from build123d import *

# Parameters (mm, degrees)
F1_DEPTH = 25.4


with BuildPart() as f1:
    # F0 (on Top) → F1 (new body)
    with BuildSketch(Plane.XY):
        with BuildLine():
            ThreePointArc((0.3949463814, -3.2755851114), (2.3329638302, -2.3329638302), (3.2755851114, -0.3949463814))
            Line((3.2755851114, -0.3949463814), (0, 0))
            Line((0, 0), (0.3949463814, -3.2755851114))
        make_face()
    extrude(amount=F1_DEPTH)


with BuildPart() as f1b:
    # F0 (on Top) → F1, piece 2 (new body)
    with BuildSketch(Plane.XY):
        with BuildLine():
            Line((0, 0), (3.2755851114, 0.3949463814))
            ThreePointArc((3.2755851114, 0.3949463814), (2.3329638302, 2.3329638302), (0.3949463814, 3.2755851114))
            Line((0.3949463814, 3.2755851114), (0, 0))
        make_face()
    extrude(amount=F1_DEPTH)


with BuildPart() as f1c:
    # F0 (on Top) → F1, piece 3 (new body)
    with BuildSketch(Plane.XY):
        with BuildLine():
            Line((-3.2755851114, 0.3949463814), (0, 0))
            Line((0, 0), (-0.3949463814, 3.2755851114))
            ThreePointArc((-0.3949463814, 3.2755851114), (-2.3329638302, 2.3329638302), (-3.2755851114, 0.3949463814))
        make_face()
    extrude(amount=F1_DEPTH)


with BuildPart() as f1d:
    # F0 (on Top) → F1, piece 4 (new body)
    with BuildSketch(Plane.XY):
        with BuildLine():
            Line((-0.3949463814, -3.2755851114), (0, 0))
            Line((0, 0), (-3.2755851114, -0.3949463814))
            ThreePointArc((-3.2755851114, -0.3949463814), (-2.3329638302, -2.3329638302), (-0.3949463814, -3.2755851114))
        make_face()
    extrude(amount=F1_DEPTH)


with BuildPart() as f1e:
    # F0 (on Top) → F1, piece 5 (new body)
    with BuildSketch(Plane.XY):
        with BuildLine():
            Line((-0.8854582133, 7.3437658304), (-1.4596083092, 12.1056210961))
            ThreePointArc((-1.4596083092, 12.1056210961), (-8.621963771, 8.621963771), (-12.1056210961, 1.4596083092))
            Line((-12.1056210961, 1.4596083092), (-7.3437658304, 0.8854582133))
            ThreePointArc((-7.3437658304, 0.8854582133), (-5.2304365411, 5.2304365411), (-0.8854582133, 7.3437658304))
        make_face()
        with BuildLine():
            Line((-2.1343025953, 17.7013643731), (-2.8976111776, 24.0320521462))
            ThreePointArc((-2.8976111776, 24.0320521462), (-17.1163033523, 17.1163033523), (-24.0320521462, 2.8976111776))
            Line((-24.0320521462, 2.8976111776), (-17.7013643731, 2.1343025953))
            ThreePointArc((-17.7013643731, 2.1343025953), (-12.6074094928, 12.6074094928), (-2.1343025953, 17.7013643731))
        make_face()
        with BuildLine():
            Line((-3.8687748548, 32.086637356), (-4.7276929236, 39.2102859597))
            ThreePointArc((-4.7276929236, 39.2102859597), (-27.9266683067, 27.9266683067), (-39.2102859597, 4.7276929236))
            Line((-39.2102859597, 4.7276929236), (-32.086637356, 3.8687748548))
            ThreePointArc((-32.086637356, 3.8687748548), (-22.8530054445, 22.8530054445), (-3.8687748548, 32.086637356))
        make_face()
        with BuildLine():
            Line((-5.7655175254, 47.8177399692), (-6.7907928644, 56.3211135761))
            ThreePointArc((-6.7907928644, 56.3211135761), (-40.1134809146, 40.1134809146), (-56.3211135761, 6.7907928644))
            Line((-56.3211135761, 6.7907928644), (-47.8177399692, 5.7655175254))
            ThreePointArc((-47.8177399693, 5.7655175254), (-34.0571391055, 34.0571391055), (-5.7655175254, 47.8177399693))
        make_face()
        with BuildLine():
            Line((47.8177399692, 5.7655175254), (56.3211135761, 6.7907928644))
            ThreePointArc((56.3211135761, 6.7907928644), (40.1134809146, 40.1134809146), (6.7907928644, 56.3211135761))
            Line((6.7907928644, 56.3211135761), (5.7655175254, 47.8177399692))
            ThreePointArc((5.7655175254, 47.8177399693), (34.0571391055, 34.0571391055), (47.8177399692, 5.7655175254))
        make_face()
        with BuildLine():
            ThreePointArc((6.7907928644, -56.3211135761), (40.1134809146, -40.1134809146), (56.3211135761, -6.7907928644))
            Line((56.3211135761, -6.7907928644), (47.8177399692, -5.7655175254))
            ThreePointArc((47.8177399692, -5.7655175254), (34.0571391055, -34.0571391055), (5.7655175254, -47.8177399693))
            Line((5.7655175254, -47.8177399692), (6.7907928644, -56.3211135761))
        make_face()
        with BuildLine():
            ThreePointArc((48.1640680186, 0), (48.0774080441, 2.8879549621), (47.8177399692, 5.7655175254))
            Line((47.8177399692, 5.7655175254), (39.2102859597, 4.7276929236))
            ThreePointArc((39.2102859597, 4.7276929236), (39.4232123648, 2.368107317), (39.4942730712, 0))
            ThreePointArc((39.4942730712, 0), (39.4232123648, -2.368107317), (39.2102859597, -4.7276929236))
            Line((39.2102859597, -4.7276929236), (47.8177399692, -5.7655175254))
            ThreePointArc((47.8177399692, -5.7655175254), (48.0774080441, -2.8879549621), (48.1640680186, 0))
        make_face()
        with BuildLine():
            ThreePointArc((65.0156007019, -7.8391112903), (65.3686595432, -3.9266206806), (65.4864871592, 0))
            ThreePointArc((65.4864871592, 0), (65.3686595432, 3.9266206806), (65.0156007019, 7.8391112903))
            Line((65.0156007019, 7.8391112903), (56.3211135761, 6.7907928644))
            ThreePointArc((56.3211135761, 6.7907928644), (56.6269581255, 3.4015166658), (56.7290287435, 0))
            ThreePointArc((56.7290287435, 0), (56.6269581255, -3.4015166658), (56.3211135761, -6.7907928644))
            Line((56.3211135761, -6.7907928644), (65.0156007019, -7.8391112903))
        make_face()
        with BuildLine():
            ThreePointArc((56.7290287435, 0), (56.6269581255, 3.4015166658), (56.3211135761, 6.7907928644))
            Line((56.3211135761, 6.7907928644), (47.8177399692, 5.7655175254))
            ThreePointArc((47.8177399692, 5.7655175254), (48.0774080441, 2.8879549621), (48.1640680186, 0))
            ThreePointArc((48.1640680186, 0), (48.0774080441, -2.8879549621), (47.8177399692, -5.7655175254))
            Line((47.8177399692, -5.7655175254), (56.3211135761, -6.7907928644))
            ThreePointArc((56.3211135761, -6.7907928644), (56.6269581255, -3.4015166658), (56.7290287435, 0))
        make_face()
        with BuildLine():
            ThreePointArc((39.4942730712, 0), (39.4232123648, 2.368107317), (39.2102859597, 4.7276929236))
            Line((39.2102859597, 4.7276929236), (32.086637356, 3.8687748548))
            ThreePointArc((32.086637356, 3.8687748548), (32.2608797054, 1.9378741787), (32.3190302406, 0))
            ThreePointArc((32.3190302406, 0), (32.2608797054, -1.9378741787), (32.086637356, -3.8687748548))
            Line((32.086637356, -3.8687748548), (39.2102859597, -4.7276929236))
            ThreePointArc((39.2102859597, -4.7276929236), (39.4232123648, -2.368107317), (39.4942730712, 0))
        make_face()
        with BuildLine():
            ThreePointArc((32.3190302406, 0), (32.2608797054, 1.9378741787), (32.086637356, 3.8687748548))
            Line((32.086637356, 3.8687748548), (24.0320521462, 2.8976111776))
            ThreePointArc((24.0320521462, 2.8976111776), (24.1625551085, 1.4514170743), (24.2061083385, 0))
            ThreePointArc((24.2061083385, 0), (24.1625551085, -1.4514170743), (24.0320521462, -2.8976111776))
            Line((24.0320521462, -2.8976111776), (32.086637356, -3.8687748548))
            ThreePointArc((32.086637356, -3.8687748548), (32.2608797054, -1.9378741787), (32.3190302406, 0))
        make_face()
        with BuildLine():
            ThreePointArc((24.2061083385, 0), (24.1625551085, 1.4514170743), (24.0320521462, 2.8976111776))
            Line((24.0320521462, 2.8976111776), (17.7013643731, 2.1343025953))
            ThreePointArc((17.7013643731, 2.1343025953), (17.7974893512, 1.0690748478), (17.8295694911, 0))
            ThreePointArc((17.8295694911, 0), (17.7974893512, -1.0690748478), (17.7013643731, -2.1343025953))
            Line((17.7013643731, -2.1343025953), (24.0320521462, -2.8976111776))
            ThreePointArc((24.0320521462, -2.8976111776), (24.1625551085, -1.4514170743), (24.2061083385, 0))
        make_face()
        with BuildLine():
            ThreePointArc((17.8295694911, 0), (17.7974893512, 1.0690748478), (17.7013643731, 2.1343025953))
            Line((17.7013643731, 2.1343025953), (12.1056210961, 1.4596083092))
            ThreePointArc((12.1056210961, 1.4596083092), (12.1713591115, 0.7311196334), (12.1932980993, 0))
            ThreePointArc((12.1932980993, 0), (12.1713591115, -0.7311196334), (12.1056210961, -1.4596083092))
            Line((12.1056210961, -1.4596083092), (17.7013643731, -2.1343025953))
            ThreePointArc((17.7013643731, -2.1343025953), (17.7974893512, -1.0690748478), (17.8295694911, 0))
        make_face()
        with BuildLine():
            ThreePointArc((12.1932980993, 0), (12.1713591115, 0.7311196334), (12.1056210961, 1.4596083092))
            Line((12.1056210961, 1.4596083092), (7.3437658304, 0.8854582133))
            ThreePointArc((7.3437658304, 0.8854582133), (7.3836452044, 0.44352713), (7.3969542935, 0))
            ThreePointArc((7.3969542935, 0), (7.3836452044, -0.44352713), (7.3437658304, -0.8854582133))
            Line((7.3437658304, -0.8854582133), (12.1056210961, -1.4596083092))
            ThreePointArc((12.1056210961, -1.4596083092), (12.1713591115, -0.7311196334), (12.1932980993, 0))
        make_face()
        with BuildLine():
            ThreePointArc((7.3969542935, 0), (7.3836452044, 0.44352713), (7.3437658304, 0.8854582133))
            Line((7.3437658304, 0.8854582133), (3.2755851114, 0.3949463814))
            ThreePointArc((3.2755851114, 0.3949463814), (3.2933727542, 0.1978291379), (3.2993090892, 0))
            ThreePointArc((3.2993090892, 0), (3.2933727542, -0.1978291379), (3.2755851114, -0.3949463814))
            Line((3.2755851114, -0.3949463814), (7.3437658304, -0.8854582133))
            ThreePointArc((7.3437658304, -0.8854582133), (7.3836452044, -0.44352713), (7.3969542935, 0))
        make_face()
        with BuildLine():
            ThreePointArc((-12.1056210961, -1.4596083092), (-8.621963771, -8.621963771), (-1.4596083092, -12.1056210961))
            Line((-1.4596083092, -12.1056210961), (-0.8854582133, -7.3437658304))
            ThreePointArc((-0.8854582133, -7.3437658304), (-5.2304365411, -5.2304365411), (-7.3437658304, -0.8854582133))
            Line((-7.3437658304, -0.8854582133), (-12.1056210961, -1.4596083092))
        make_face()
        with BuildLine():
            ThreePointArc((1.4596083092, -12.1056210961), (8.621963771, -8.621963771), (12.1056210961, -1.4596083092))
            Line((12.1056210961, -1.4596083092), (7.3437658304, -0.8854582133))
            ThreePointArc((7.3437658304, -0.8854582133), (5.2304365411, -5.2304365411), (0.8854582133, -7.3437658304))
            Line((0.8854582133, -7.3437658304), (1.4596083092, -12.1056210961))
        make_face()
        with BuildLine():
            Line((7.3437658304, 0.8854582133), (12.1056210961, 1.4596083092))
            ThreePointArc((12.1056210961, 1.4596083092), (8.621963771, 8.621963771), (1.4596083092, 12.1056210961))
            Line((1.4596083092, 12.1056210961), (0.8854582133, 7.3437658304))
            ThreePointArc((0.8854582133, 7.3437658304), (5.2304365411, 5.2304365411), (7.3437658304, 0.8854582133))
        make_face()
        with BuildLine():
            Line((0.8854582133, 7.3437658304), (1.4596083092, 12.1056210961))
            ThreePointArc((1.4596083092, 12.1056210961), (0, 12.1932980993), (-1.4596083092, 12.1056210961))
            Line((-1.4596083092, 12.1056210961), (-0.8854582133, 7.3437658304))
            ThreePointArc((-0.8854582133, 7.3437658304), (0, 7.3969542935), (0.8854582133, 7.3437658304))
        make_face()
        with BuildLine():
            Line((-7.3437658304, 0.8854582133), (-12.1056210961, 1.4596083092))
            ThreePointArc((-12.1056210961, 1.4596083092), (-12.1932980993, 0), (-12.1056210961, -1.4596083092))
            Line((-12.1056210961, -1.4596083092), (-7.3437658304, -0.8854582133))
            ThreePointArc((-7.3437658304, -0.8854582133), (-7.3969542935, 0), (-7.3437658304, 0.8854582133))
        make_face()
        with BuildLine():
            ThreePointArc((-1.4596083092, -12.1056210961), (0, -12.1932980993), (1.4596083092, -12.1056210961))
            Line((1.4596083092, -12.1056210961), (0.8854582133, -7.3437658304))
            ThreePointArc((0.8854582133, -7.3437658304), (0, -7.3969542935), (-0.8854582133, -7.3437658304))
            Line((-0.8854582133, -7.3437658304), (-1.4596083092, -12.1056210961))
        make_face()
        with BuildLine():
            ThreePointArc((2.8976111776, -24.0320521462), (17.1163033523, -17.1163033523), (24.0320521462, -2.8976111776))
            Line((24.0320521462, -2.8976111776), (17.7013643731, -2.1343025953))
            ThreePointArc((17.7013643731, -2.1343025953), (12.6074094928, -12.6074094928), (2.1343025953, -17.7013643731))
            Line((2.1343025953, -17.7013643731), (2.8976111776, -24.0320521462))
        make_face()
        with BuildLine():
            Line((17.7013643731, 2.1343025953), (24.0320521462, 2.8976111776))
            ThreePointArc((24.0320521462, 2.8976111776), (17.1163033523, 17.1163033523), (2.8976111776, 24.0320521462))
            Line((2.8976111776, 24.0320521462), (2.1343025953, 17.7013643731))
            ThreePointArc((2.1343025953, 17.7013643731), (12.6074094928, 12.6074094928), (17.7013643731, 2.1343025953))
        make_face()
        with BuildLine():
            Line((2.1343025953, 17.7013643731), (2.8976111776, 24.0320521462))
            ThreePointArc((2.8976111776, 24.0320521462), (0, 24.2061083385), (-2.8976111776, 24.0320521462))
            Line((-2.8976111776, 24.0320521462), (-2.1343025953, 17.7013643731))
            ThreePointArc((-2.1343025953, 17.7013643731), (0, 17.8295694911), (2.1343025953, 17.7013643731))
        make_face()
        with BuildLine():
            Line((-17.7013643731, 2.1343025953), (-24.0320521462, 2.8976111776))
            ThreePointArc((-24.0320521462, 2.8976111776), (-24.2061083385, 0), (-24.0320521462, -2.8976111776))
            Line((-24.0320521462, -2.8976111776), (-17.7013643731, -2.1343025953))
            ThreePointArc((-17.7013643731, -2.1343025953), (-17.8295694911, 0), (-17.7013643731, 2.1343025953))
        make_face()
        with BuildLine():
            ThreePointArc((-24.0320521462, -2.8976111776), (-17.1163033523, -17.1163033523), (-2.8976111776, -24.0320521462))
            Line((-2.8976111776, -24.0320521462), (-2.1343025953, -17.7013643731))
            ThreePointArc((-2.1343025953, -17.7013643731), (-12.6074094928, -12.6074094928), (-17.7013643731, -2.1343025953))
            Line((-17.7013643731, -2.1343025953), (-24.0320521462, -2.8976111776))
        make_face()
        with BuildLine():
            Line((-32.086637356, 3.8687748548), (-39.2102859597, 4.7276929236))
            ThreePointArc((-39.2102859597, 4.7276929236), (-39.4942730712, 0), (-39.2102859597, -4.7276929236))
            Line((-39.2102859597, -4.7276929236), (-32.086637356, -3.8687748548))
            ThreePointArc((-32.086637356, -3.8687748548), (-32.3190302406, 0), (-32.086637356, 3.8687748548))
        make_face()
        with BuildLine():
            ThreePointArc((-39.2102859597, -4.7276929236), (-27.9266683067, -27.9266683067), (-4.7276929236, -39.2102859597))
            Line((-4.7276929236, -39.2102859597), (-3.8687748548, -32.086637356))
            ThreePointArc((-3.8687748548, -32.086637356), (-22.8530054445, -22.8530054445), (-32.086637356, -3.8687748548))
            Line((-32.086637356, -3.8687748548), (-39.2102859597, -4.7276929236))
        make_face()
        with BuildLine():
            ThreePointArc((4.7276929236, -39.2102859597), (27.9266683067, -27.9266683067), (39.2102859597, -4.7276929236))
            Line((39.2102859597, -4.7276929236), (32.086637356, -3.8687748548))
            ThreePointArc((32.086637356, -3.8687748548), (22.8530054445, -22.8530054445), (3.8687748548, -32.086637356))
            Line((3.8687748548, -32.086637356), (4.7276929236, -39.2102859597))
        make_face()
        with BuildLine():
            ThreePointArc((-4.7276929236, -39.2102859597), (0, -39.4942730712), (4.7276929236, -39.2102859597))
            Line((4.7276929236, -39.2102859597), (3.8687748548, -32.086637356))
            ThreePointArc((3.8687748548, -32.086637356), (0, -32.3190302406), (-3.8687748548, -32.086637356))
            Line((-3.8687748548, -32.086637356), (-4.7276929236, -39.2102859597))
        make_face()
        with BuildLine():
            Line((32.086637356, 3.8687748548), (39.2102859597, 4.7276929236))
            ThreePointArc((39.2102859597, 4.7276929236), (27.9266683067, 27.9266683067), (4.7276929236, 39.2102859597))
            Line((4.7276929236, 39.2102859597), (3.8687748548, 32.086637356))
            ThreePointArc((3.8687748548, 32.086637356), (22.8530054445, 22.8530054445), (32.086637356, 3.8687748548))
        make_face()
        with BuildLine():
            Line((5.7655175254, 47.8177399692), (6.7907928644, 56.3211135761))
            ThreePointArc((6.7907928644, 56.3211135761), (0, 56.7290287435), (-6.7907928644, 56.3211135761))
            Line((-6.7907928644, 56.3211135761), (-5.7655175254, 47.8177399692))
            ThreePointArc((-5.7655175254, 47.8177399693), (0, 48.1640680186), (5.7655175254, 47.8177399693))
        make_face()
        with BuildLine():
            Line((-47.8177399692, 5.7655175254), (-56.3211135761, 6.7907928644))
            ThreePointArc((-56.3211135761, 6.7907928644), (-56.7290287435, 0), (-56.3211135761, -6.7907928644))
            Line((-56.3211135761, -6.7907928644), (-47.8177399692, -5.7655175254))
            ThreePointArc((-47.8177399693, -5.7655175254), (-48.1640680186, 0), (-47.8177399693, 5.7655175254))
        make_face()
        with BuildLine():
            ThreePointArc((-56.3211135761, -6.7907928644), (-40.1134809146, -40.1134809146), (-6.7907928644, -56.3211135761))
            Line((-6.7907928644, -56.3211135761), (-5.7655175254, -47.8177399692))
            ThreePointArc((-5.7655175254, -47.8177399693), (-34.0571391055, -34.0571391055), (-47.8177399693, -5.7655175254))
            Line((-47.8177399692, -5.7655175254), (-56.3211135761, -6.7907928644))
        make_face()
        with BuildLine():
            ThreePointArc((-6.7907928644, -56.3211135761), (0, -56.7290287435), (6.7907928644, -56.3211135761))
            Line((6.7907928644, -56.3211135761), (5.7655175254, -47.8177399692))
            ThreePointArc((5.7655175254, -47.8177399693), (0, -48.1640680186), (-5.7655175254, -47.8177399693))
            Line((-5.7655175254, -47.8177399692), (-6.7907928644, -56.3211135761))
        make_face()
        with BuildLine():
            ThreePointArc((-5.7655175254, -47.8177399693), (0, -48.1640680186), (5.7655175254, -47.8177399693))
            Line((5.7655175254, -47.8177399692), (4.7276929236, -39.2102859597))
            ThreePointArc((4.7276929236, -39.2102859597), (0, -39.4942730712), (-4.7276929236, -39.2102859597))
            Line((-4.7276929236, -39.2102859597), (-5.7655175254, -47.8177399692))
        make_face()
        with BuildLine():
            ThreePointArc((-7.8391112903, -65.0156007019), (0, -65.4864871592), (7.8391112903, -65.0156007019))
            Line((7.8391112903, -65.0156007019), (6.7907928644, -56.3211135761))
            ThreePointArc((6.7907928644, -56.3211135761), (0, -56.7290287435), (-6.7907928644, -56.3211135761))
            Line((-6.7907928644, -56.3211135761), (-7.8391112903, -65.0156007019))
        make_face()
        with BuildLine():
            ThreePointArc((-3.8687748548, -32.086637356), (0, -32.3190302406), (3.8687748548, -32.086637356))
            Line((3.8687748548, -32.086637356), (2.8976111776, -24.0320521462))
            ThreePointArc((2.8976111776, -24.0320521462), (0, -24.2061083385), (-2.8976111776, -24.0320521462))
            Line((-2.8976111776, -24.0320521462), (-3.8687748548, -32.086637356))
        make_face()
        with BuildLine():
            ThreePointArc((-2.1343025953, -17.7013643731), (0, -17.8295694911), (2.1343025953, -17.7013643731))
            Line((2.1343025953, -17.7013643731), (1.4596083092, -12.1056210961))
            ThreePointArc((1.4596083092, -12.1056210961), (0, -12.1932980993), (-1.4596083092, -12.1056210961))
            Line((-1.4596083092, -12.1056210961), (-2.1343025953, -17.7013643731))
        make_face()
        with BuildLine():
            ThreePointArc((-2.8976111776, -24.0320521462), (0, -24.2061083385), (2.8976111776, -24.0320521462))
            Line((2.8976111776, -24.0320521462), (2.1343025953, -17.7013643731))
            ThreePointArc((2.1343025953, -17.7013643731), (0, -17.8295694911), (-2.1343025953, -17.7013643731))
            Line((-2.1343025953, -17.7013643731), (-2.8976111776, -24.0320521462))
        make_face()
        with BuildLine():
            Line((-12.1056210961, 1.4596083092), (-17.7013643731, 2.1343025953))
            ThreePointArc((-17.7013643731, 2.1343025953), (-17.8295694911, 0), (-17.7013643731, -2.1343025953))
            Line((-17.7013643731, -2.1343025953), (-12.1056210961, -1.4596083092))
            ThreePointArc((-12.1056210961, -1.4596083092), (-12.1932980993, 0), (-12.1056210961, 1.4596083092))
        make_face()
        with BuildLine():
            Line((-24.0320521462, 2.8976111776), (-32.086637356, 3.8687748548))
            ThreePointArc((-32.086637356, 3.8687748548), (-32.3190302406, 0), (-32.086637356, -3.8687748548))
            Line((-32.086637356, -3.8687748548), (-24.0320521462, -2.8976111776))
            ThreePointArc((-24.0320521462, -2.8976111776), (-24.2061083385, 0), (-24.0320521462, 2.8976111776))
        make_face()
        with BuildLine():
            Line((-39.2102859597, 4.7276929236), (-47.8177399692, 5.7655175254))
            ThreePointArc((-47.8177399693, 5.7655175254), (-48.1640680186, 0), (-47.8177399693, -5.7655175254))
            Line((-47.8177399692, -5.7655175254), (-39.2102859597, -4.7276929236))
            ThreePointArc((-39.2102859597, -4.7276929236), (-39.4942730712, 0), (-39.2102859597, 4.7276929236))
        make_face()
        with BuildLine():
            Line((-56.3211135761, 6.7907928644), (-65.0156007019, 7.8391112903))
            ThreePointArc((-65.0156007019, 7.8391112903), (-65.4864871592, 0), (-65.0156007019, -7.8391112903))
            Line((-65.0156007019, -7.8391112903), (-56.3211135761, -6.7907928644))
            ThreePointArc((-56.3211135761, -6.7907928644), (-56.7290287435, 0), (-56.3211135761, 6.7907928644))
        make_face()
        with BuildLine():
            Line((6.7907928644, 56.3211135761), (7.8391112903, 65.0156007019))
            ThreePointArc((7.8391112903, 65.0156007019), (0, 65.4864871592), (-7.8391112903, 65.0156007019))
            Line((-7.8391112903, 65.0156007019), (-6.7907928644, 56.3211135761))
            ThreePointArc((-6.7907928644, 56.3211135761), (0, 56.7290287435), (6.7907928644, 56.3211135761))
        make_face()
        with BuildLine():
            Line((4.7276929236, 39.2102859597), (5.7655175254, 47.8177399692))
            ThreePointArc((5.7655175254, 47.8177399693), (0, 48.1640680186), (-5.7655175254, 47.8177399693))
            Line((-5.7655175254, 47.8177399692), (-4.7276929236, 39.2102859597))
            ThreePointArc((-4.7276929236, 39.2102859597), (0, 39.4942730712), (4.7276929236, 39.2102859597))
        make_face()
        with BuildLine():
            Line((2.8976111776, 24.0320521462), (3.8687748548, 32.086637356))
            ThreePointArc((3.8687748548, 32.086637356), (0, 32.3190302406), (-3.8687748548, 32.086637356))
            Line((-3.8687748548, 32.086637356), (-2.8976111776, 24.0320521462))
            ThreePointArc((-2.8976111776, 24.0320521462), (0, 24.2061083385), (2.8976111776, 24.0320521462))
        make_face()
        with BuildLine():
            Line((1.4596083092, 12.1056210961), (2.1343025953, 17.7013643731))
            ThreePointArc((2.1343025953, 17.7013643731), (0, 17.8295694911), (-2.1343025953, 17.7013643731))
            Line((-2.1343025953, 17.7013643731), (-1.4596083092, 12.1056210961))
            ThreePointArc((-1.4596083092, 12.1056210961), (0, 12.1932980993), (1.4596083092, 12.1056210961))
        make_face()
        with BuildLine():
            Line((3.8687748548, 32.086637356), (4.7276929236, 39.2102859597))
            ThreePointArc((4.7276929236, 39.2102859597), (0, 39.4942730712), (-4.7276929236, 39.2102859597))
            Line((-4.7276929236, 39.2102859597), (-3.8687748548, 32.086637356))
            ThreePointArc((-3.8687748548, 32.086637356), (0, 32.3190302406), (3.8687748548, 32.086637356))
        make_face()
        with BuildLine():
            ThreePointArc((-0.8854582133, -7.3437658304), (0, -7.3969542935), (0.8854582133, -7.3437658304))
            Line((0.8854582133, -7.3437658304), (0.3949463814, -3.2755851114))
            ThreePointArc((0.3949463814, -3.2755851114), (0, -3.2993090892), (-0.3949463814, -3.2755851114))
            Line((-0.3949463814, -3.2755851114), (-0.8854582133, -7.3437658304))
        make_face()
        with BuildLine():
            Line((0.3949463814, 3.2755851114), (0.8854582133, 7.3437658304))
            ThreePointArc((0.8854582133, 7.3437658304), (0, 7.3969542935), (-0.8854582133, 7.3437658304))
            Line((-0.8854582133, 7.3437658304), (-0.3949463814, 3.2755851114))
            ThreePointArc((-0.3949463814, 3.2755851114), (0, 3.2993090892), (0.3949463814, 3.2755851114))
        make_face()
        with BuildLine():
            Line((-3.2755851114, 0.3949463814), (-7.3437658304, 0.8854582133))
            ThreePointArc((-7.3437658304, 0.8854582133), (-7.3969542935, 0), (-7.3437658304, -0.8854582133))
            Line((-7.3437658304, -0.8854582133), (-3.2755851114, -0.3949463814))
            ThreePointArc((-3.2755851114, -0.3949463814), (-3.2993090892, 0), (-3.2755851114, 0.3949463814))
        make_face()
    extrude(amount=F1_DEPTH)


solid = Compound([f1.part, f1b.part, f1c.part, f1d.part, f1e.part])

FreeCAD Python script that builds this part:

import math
import FreeCAD as App
import Part
import Sketcher
from FreeCAD import Vector
Q = App.Units.Quantity

doc = App.newDocument("Part")
body = doc.addObject("PartDesign::Body", "Body")

# Sketch on XY plane
sketch1 = body.newObject("Sketcher::SketchObject", "Sketch")
sketch1.AttachmentSupport = (doc.getObject("XY_Plane"), [""])
sketch1.MapMode = "FlatFace"
sketch1.addGeometry([
    Part.ArcOfCircle(Part.Circle(Vector(0, 0, 0), Vector(0, 0, 1), 3.299309), math.radians(-83.124877), math.radians(-6.875123)),
    Part.LineSegment(Vector(3.275585, -0.394946, 0), Vector(0, 0, 0)),
    Part.LineSegment(Vector(0, 0, 0), Vector(0.394946, -3.275585, 0)),
], False)
sketch1.addConstraint([
    Sketcher.Constraint("Coincident", 0, 2, 1, 1),
    Sketcher.Constraint("Coincident", 1, 2, 2, 1),
    Sketcher.Constraint("Coincident", 2, 2, 0, 1),
    Sketcher.Constraint("Coincident", 0, 3, -1, 1),
    Sketcher.Constraint("Coincident", 1, 2, -1, 1),
    Sketcher.Constraint("Radius", 0, Q("3.299309 mm")),
    Sketcher.Constraint("DistanceX", 2, 2, 0, 2, Q("2.880639 mm")),
    Sketcher.Constraint("DistanceY", 2, 2, 0, 2, Q("2.880639 mm")),
])
pad1 = body.newObject("PartDesign::Pad", "Pad")
pad1.Profile = sketch1
pad1.Length = Q("1 in")
body2 = doc.addObject("PartDesign::Body", "Body001")

# Sketch on XY plane
sketch2 = body2.newObject("Sketcher::SketchObject", "Sketch001")
sketch2.AttachmentSupport = (doc.getObject("XY_Plane001"), [""])
sketch2.MapMode = "FlatFace"
sketch2.addGeometry([
    Part.LineSegment(Vector(0, 0, 0), Vector(3.275585, 0.394946, 0)),
    Part.ArcOfCircle(Part.Circle(Vector(0, 0, 0), Vector(0, 0, 1), 3.299309), math.radians(6.875123), math.radians(83.124877)),
    Part.LineSegment(Vector(0.394946, 3.275585, 0), Vector(0, 0, 0)),
], False)
sketch2.addConstraint([
    Sketcher.Constraint("Coincident", 0, 2, 1, 1),
    Sketcher.Constraint("Coincident", 1, 2, 2, 1),
    Sketcher.Constraint("Coincident", 2, 2, 0, 1),
    Sketcher.Constraint("Coincident", 1, 3, -1, 1),
    Sketcher.Constraint("Coincident", 2, 2, -1, 1),
    Sketcher.Constraint("Radius", 1, Q("3.299309 mm")),
    Sketcher.Constraint("DistanceX", 1, 2, 0, 2, Q("2.880639 mm")),
    Sketcher.Constraint("DistanceY", 0, 2, 1, 2, Q("2.880639 mm")),
])
pad2 = body2.newObject("PartDesign::Pad", "Pad001")
pad2.Profile = sketch2
pad2.Length = Q("1 in")
body3 = doc.addObject("PartDesign::Body", "Body002")

# Sketch on XY plane
sketch3 = body3.newObject("Sketcher::SketchObject", "Sketch002")
sketch3.AttachmentSupport = (doc.getObject("XY_Plane002"), [""])
sketch3.MapMode = "FlatFace"
sketch3.addGeometry([
    Part.LineSegment(Vector(-3.275585, 0.394946, 0), Vector(0, 0, 0)),
    Part.LineSegment(Vector(0, 0, 0), Vector(-0.394946, 3.275585, 0)),
    Part.ArcOfCircle(Part.Circle(Vector(0, 0, 0), Vector(0, 0, 1), 3.299309), math.radians(96.875123), math.radians(173.124877)),
], False)
sketch3.addConstraint([
    Sketcher.Constraint("Coincident", 0, 2, 1, 1),
    Sketcher.Constraint("Coincident", 1, 2, 2, 1),
    Sketcher.Constraint("Coincident", 2, 2, 0, 1),
    Sketcher.Constraint("Coincident", 2, 3, -1, 1),
    Sketcher.Constraint("Coincident", 0, 2, -1, 1),
    Sketcher.Constraint("Radius", 2, Q("3.299309 mm")),
    Sketcher.Constraint("DistanceX", 2, 2, 1, 2, Q("2.880639 mm")),
    Sketcher.Constraint("DistanceY", 2, 2, 1, 2, Q("2.880639 mm")),
])
pad3 = body3.newObject("PartDesign::Pad", "Pad002")
pad3.Profile = sketch3
pad3.Length = Q("1 in")
body4 = doc.addObject("PartDesign::Body", "Body003")

# Sketch on XY plane
sketch4 = body4.newObject("Sketcher::SketchObject", "Sketch003")
sketch4.AttachmentSupport = (doc.getObject("XY_Plane003"), [""])
sketch4.MapMode = "FlatFace"
sketch4.addGeometry([
    Part.LineSegment(Vector(-0.394946, -3.275585, 0), Vector(0, 0, 0)),
    Part.LineSegment(Vector(0, 0, 0), Vector(-3.275585, -0.394946, 0)),
    Part.ArcOfCircle(Part.Circle(Vector(0, 0, 0), Vector(0, 0, 1), 3.299309), math.radians(-173.124877), math.radians(-96.875123)),
], False)
sketch4.addConstraint([
    Sketcher.Constraint("Coincident", 0, 2, 1, 1),
    Sketcher.Constraint("Coincident", 1, 2, 2, 1),
    Sketcher.Constraint("Coincident", 2, 2, 0, 1),
    Sketcher.Constraint("Coincident", 2, 3, -1, 1),
    Sketcher.Constraint("Coincident", 0, 2, -1, 1),
    Sketcher.Constraint("Radius", 2, Q("3.299309 mm")),
    Sketcher.Constraint("DistanceX", 1, 2, 2, 2, Q("2.880639 mm")),
    Sketcher.Constraint("DistanceY", 2, 2, 1, 2, Q("2.880639 mm")),
])
pad4 = body4.newObject("PartDesign::Pad", "Pad003")
pad4.Profile = sketch4
pad4.Length = Q("1 in")
body5 = doc.addObject("PartDesign::Body", "Body004")

# Sketch on XY plane
sketch5 = body5.newObject("Sketcher::SketchObject", "Sketch004")
sketch5.AttachmentSupport = (doc.getObject("XY_Plane004"), [""])
sketch5.MapMode = "FlatFace"
sketch5.addGeometry([
    Part.ArcOfCircle(Part.Circle(Vector(0, 0, 0), Vector(0, 0, 1), 56.729029), math.radians(-83.124877), math.radians(-6.875123)),  # 0
    Part.LineSegment(Vector(56.321114, -6.790793, 0), Vector(65.015601, -7.839111, 0)),  # 1
    Part.ArcOfCircle(Part.Circle(Vector(0, 0, 0), Vector(0, 0, 1), 65.486487), math.radians(-6.875123), math.radians(0)),  # 2
    Part.ArcOfCircle(Part.Circle(Vector(0, 0, 0), Vector(0, 0, 1), 65.486487), math.radians(0), math.radians(6.875123)),  # 3
    Part.LineSegment(Vector(65.015601, 7.839111, 0), Vector(56.321114, 6.790793, 0)),  # 4
    Part.ArcOfCircle(Part.Circle(Vector(0, 0, 0), Vector(0, 0, 1), 56.729029), math.radians(6.875123), math.radians(83.124877)),  # 5
    Part.LineSegment(Vector(6.790793, 56.321114, 0), Vector(7.839111, 65.015601, 0)),  # 6
    Part.ArcOfCircle(Part.Circle(Vector(0, 0, 0), Vector(0, 0, 1), 65.486487), math.radians(83.124877), math.radians(96.875123)),  # 7
    Part.LineSegment(Vector(-7.839111, 65.015601, 0), Vector(-6.790793, 56.321114, 0)),  # 8
    Part.ArcOfCircle(Part.Circle(Vector(0, 0, 0), Vector(0, 0, 1), 56.729029), math.radians(96.875123), math.radians(173.124877)),  # 9
    Part.LineSegment(Vector(-56.321114, 6.790793, 0), Vector(-65.015601, 7.839111, 0)),  # 10
    Part.ArcOfCircle(Part.Circle(Vector(0, 0, 0), Vector(0, 0, 1), 65.486487), math.radians(173.124877), math.radians(186.875123)),  # 11
    Part.LineSegment(Vector(-65.015601, -7.839111, 0), Vector(-56.321114, -6.790793, 0)),  # 12
    Part.ArcOfCircle(Part.Circle(Vector(0, 0, 0), Vector(0, 0, 1), 56.729029), math.radians(-173.124877), math.radians(-96.875123)),  # 13
    Part.LineSegment(Vector(-6.790793, -56.321114, 0), Vector(-7.839111, -65.015601, 0)),  # 14
    Part.ArcOfCircle(Part.Circle(Vector(0, 0, 0), Vector(0, 0, 1), 65.486487), math.radians(-96.875123), math.radians(-83.124877)),  # 15
    Part.LineSegment(Vector(7.839111, -65.015601, 0), Vector(6.790793, -56.321114, 0)),  # 16
    Part.ArcOfCircle(Part.Circle(Vector(0, 0, 0), Vector(0, 0, 1), 39.494273), math.radians(-173.124877), math.radians(-96.875123)),  # 17
    Part.LineSegment(Vector(-4.727693, -39.210286, 0), Vector(-5.765518, -47.81774, 0)),  # 18
    Part.ArcOfCircle(Part.Circle(Vector(0, 0, 0), Vector(0, 0, 1), 48.164068), math.radians(-173.124877), math.radians(-96.875123)),  # 19
    Part.LineSegment(Vector(-47.81774, -5.765518, 0), Vector(-39.210286, -4.727693, 0)),  # 20
    Part.ArcOfCircle(Part.Circle(Vector(0, 0, 0), Vector(0, 0, 1), 24.206108), math.radians(-173.124877), math.radians(-96.875123)),  # 21
    Part.LineSegment(Vector(-2.897611, -24.032052, 0), Vector(-3.868775, -32.086637, 0)),  # 22
    Part.ArcOfCircle(Part.Circle(Vector(0, 0, 0), Vector(0, 0, 1), 32.31903), math.radians(-173.124877), math.radians(-96.875123)),  # 23
    Part.LineSegment(Vector(-32.086637, -3.868775, 0), Vector(-24.032052, -2.897611, 0)),  # 24
    Part.LineSegment(Vector(-1.459608, -12.105621, 0), Vector(-2.134303, -17.701364, 0)),  # 25
    Part.ArcOfCircle(Part.Circle(Vector(0, 0, 0), Vector(0, 0, 1), 17.829569), math.radians(-173.124877), math.radians(-96.875123)),  # 26
    Part.LineSegment(Vector(-17.701364, -2.134303, 0), Vector(-12.105621, -1.459608, 0)),  # 27
    Part.ArcOfCircle(Part.Circle(Vector(0, 0, 0), Vector(0, 0, 1), 12.193298), math.radians(-173.124877), math.radians(-96.875123)),  # 28
    Part.ArcOfCircle(Part.Circle(Vector(0, 0, 0), Vector(0, 0, 1), 7.396954), math.radians(-173.124877), math.radians(-96.875123)),  # 29
    Part.LineSegment(Vector(-7.343766, -0.885458, 0), Vector(-3.275585, -0.394946, 0)),  # 30
    Part.ArcOfCircle(Part.Circle(Vector(0, 0, 0), Vector(0, 0, 1), 3.299309), math.radians(173.124877), math.radians(186.875123)),  # 31
    Part.LineSegment(Vector(-3.275585, 0.394946, 0), Vector(-7.343766, 0.885458, 0)),  # 32
    Part.ArcOfCircle(Part.Circle(Vector(0, 0, 0), Vector(0, 0, 1), 7.396954), math.radians(96.875123), math.radians(173.124877)),  # 33
    Part.LineSegment(Vector(-0.885458, 7.343766, 0), Vector(-0.394946, 3.275585, 0)),  # 34
    Part.ArcOfCircle(Part.Circle(Vector(0, 0, 0), Vector(0, 0, 1), 3.299309), math.radians(83.124877), math.radians(96.875123)),  # 35
    Part.LineSegment(Vector(0.394946, 3.275585, 0), Vector(0.885458, 7.343766, 0)),  # 36
    Part.ArcOfCircle(Part.Circle(Vector(0, 0, 0), Vector(0, 0, 1), 7.396954), math.radians(6.875123), math.radians(83.124877)),  # 37
    Part.LineSegment(Vector(7.343766, 0.885458, 0), Vector(3.275585, 0.394946, 0)),  # 38
    Part.ArcOfCircle(Part.Circle(Vector(0, 0, 0), Vector(0, 0, 1), 3.299309), math.radians(0), math.radians(6.875123)),  # 39
    Part.ArcOfCircle(Part.Circle(Vector(0, 0, 0), Vector(0, 0, 1), 3.299309), math.radians(-6.875123), math.radians(0)),  # 40
    Part.LineSegment(Vector(3.275585, -0.394946, 0), Vector(7.343766, -0.885458, 0)),  # 41
    Part.ArcOfCircle(Part.Circle(Vector(0, 0, 0), Vector(0, 0, 1), 7.396954), math.radians(-83.124877), math.radians(-6.875123)),  # 42
    Part.LineSegment(Vector(0.885458, -7.343766, 0), Vector(0.394946, -3.275585, 0)),  # 43
    Part.ArcOfCircle(Part.Circle(Vector(0, 0, 0), Vector(0, 0, 1), 3.299309), math.radians(-96.875123), math.radians(-83.124877)),  # 44
    Part.LineSegment(Vector(-0.394946, -3.275585, 0), Vector(-0.885458, -7.343766, 0)),  # 45
    Part.ArcOfCircle(Part.Circle(Vector(0, 0, 0), Vector(0, 0, 1), 39.494273), math.radians(-83.124877), math.radians(-6.875123)),  # 46
    Part.LineSegment(Vector(39.210286, -4.727693, 0), Vector(47.81774, -5.765518, 0)),  # 47
    Part.ArcOfCircle(Part.Circle(Vector(0, 0, 0), Vector(0, 0, 1), 48.164068), math.radians(-83.124877), math.radians(-6.875123)),  # 48
    Part.LineSegment(Vector(5.765518, -47.81774, 0), Vector(4.727693, -39.210286, 0)),  # 49
    Part.LineSegment(Vector(3.868775, -32.086637, 0), Vector(2.897611, -24.032052, 0)),  # 50
    Part.ArcOfCircle(Part.Circle(Vector(0, 0, 0), Vector(0, 0, 1), 24.206108), math.radians(-83.124877), math.radians(-6.875123)),  # 51
    Part.LineSegment(Vector(24.032052, -2.897611, 0), Vector(32.086637, -3.868775, 0)),  # 52
    Part.ArcOfCircle(Part.Circle(Vector(0, 0, 0), Vector(0, 0, 1), 32.31903), math.radians(-83.124877), math.radians(-6.875123)),  # 53
    Part.ArcOfCircle(Part.Circle(Vector(0, 0, 0), Vector(0, 0, 1), 17.829569), math.radians(-83.124877), math.radians(-6.875123)),  # 54
    Part.LineSegment(Vector(2.134303, -17.701364, 0), Vector(1.459608, -12.105621, 0)),  # 55
    Part.ArcOfCircle(Part.Circle(Vector(0, 0, 0), Vector(0, 0, 1), 12.193298), math.radians(-83.124877), math.radians(-6.875123)),  # 56
    Part.LineSegment(Vector(12.105621, -1.459608, 0), Vector(17.701364, -2.134303, 0)),  # 57
    Part.ArcOfCircle(Part.Circle(Vector(0, 0, 0), Vector(0, 0, 1), 17.829569), math.radians(96.875123), math.radians(173.124877)),  # 58
    Part.LineSegment(Vector(-2.134303, 17.701364, 0), Vector(-1.459608, 12.105621, 0)),  # 59
    Part.ArcOfCircle(Part.Circle(Vector(0, 0, 0), Vector(0, 0, 1), 12.193298), math.radians(96.875123), math.radians(173.124877)),  # 60
    Part.LineSegment(Vector(-12.105621, 1.459608, 0), Vector(-17.701364, 2.134303, 0)),  # 61
    Part.ArcOfCircle(Part.Circle(Vector(0, 0, 0), Vector(0, 0, 1), 32.31903), math.radians(96.875123), math.radians(173.124877)),  # 62
    Part.LineSegment(Vector(-3.868775, 32.086637, 0), Vector(-2.897611, 24.032052, 0)),  # 63
    Part.ArcOfCircle(Part.Circle(Vector(0, 0, 0), Vector(0, 0, 1), 24.206108), math.radians(96.875123), math.radians(173.124877)),  # 64
    Part.LineSegment(Vector(-24.032052, 2.897611, 0), Vector(-32.086637, 3.868775, 0)),  # 65
    Part.LineSegment(Vector(-5.765518, 47.81774, 0), Vector(-4.727693, 39.210286, 0)),  # 66
    Part.ArcOfCircle(Part.Circle(Vector(0, 0, 0), Vector(0, 0, 1), 39.494273), math.radians(96.875123), math.radians(173.124877)),  # 67
    Part.LineSegment(Vector(-39.210286, 4.727693, 0), Vector(-47.81774, 5.765518, 0)),  # 68
    Part.ArcOfCircle(Part.Circle(Vector(0, 0, 0), Vector(0, 0, 1), 48.164068), math.radians(96.875123), math.radians(173.124877)),  # 69
    Part.ArcOfCircle(Part.Circle(Vector(0, 0, 0), Vector(0, 0, 1), 17.829569), math.radians(6.875123), math.radians(83.124877)),  # 70
    Part.LineSegment(Vector(17.701364, 2.134303, 0), Vector(12.105621, 1.459608, 0)),  # 71
    Part.ArcOfCircle(Part.Circle(Vector(0, 0, 0), Vector(0, 0, 1), 12.193298), math.radians(6.875123), math.radians(83.124877)),  # 72
    Part.LineSegment(Vector(1.459608, 12.105621, 0), Vector(2.134303, 17.701364, 0)),  # 73
    Part.LineSegment(Vector(2.897611, 24.032052, 0), Vector(3.868775, 32.086637, 0)),  # 74
    Part.ArcOfCircle(Part.Circle(Vector(0, 0, 0), Vector(0, 0, 1), 32.31903), math.radians(6.875123), math.radians(83.124877)),  # 75
    Part.LineSegment(Vector(32.086637, 3.868775, 0), Vector(24.032052, 2.897611, 0)),  # 76
    Part.ArcOfCircle(Part.Circle(Vector(0, 0, 0), Vector(0, 0, 1), 24.206108), math.radians(6.875123), math.radians(83.124877)),  # 77
    Part.ArcOfCircle(Part.Circle(Vector(0, 0, 0), Vector(0, 0, 1), 39.494273), math.radians(6.875123), math.radians(83.124877)),  # 78
    Part.LineSegment(Vector(4.727693, 39.210286, 0), Vector(5.765518, 47.81774, 0)),  # 79
    Part.ArcOfCircle(Part.Circle(Vector(0, 0, 0), Vector(0, 0, 1), 48.164068), math.radians(6.875123), math.radians(83.124877)),  # 80
    Part.LineSegment(Vector(47.81774, 5.765518, 0), Vector(39.210286, 4.727693, 0)),  # 81
], False)
sketch5.addConstraint([
    Sketcher.Constraint("Coincident", 0, 2, 1, 1),
    Sketcher.Constraint("Coincident", 1, 2, 2, 1),
    Sketcher.Constraint("Tangent", 2, 2, 3, 1),
    Sketcher.Constraint("Coincident", 3, 2, 4, 1),
    Sketcher.Constraint("Coincident", 4, 2, 5, 1),
    Sketcher.Constraint("Coincident", 5, 2, 6, 1),
    Sketcher.Constraint("Coincident", 6, 2, 7, 1),
    Sketcher.Constraint("Coincident", 7, 2, 8, 1),
    Sketcher.Constraint("Coincident", 8, 2, 9, 1),
    Sketcher.Constraint("Coincident", 9, 2, 10, 1),
    Sketcher.Constraint("Coincident", 10, 2, 11, 1),
    Sketcher.Constraint("Coincident", 11, 2, 12, 1),
    Sketcher.Constraint("Coincident", 12, 2, 13, 1),
    Sketcher.Constraint("Coincident", 13, 2, 14, 1),
    Sketcher.Constraint("Coincident", 14, 2, 15, 1),
    Sketcher.Constraint("Coincident", 15, 2, 16, 1),
    Sketcher.Constraint("Coincident", 16, 2, 0, 1),
    Sketcher.Constraint("Coincident", 17, 2, 18, 1),
    Sketcher.Constraint("Coincident", 18, 2, 19, 2),
    Sketcher.Constraint("Coincident", 19, 1, 20, 1),
    Sketcher.Constraint("Coincident", 20, 2, 17, 1),
    Sketcher.Constraint("Coincident", 21, 2, 22, 1),
    Sketcher.Constraint("Coincident", 22, 2, 23, 2),
    Sketcher.Constraint("Coincident", 23, 1, 24, 1),
    Sketcher.Constraint("Coincident", 24, 2, 21, 1),
    Sketcher.Constraint("Coincident", 25, 2, 26, 2),
    Sketcher.Constraint("Coincident", 26, 1, 27, 1),
    Sketcher.Constraint("Coincident", 27, 2, 28, 1),
    Sketcher.Constraint("Coincident", 28, 2, 25, 1),
    Sketcher.Constraint("Coincident", 29, 1, 30, 1),
    Sketcher.Constraint("Coincident", 30, 2, 31, 2),
    Sketcher.Constraint("Coincident", 31, 1, 32, 1),
    Sketcher.Constraint("Coincident", 32, 2, 33, 2),
    Sketcher.Constraint("Coincident", 33, 1, 34, 1),
    Sketcher.Constraint("Coincident", 34, 2, 35, 2),
    Sketcher.Constraint("Coincident", 35, 1, 36, 1),
    Sketcher.Constraint("Coincident", 36, 2, 37, 2),
    Sketcher.Constraint("Coincident", 37, 1, 38, 1),
    Sketcher.Constraint("Coincident", 38, 2, 39, 2),
    Sketcher.Constraint("Tangent", 39, 1, 40, 2),
    Sketcher.Constraint("Coincident", 40, 1, 41, 1),
    Sketcher.Constraint("Coincident", 41, 2, 42, 2),
    Sketcher.Constraint("Coincident", 42, 1, 43, 1),
    Sketcher.Constraint("Coincident", 43, 2, 44, 2),
    Sketcher.Constraint("Coincident", 44, 1, 45, 1),
    Sketcher.Constraint("Coincident", 45, 2, 29, 2),
    Sketcher.Constraint("Coincident", 46, 2, 47, 1),
    Sketcher.Constraint("Coincident", 47, 2, 48, 2),
    Sketcher.Constraint("Coincident", 48, 1, 49, 1),
    Sketcher.Constraint("Coincident", 49, 2, 46, 1),
    Sketcher.Constraint("Coincident", 50, 2, 51, 1),
    Sketcher.Constraint("Coincident", 51, 2, 52, 1),
    Sketcher.Constraint("Coincident", 52, 2, 53, 2),
    Sketcher.Constraint("Coincident", 53, 1, 50, 1),
    Sketcher.Constraint("Coincident", 54, 1, 55, 1),
    Sketcher.Constraint("Coincident", 55, 2, 56, 1),
    Sketcher.Constraint("Coincident", 56, 2, 57, 1),
    Sketcher.Constraint("Coincident", 57, 2, 54, 2),
    Sketcher.Constraint("Coincident", 58, 1, 59, 1),
    Sketcher.Constraint("Coincident", 59, 2, 60, 1),
    Sketcher.Constraint("Coincident", 60, 2, 61, 1),
    Sketcher.Constraint("Coincident", 61, 2, 58, 2),
    Sketcher.Constraint("Coincident", 62, 1, 63, 1),
    Sketcher.Constraint("Coincident", 63, 2, 64, 1),
    Sketcher.Constraint("Coincident", 64, 2, 65, 1),
    Sketcher.Constraint("Coincident", 65, 2, 62, 2),
    Sketcher.Constraint("Coincident", 66, 2, 67, 1),
    Sketcher.Constraint("Coincident", 67, 2, 68, 1),
    Sketcher.Constraint("Coincident", 68, 2, 69, 2),
    Sketcher.Constraint("Coincident", 69, 1, 66, 1),
    Sketcher.Constraint("Coincident", 70, 1, 71, 1),
    Sketcher.Constraint("Coincident", 71, 2, 72, 1),
    Sketcher.Constraint("Coincident", 72, 2, 73, 1),
    Sketcher.Constraint("Coincident", 73, 2, 70, 2),
    Sketcher.Constraint("Coincident", 74, 2, 75, 2),
    Sketcher.Constraint("Coincident", 75, 1, 76, 1),
    Sketcher.Constraint("Coincident", 76, 2, 77, 1),
    Sketcher.Constraint("Coincident", 77, 2, 74, 1),
    Sketcher.Constraint("Coincident", 78, 2, 79, 1),
    Sketcher.Constraint("Coincident", 79, 2, 80, 2),
    Sketcher.Constraint("Coincident", 80, 1, 81, 1),
    Sketcher.Constraint("Coincident", 81, 2, 78, 1),
    Sketcher.Constraint("Coincident", 0, 3, -1, 1),
    Sketcher.Constraint("Coincident", 2, 3, -1, 1),
    Sketcher.Constraint("Coincident", 5, 3, -1, 1),
    Sketcher.Constraint("Coincident", 7, 3, -1, 1),
    Sketcher.Constraint("Coincident", 9, 3, -1, 1),
    Sketcher.Constraint("Coincident", 11, 3, -1, 1),
    Sketcher.Constraint("Coincident", 13, 3, -1, 1),
    Sketcher.Constraint("Coincident", 15, 3, -1, 1),
    Sketcher.Constraint("Coincident", 17, 3, -1, 1),
    Sketcher.Constraint("Coincident", 19, 3, -1, 1),
    Sketcher.Constraint("Coincident", 21, 3, -1, 1),
    Sketcher.Constraint("Coincident", 23, 3, -1, 1),
    Sketcher.Constraint("Coincident", 26, 3, -1, 1),
    Sketcher.Constraint("Coincident", 28, 3, -1, 1),
    Sketcher.Constraint("Coincident", 29, 3, -1, 1),
    Sketcher.Constraint("Coincident", 31, 3, -1, 1),
    Sketcher.Constraint("Coincident", 33, 3, -1, 1),
    Sketcher.Constraint("Coincident", 35, 3, -1, 1),
    Sketcher.Constraint("Coincident", 37, 3, -1, 1),
    Sketcher.Constraint("Coincident", 39, 3, -1, 1),
    Sketcher.Constraint("Coincident", 42, 3, -1, 1),
    Sketcher.Constraint("Coincident", 44, 3, -1, 1),
    Sketcher.Constraint("Coincident", 46, 3, -1, 1),
    Sketcher.Constraint("Coincident", 48, 3, -1, 1),
    Sketcher.Constraint("Coincident", 51, 3, -1, 1),
    Sketcher.Constraint("Coincident", 53, 3, -1, 1),
    Sketcher.Constraint("Coincident", 54, 3, -1, 1),
    Sketcher.Constraint("Coincident", 56, 3, -1, 1),
    Sketcher.Constraint("Coincident", 58, 3, -1, 1),
    Sketcher.Constraint("Coincident", 60, 3, -1, 1),
    Sketcher.Constraint("Coincident", 62, 3, -1, 1),
    Sketcher.Constraint("Coincident", 64, 3, -1, 1),
    Sketcher.Constraint("Coincident", 67, 3, -1, 1),
    Sketcher.Constraint("Coincident", 69, 3, -1, 1),
    Sketcher.Constraint("Coincident", 70, 3, -1, 1),
    Sketcher.Constraint("Coincident", 72, 3, -1, 1),
    Sketcher.Constraint("Coincident", 75, 3, -1, 1),
    Sketcher.Constraint("Coincident", 77, 3, -1, 1),
    Sketcher.Constraint("Coincident", 78, 3, -1, 1),
    Sketcher.Constraint("Coincident", 80, 3, -1, 1),
    Sketcher.Constraint("Equal", 2, 3),
    Sketcher.Constraint("Equal", 0, 5),
    Sketcher.Constraint("Equal", 3, 7),
    Sketcher.Constraint("Equal", 5, 9),
    Sketcher.Constraint("Equal", 7, 11),
    Sketcher.Constraint("Equal", 9, 13),
    Sketcher.Constraint("Equal", 11, 15),
    Sketcher.Constraint("Equal", 29, 33),
    Sketcher.Constraint("Equal", 31, 35),
    Sketcher.Constraint("Equal", 33, 37),
    Sketcher.Constraint("Equal", 35, 39),
    Sketcher.Constraint("Equal", 39, 40),
    Sketcher.Constraint("Equal", 37, 42),
    Sketcher.Constraint("Equal", 40, 44),
    Sketcher.Constraint("Equal", 17, 46),
    Sketcher.Constraint("Equal", 19, 48),
    Sketcher.Constraint("Equal", 21, 51),
    Sketcher.Constraint("Equal", 23, 53),
    Sketcher.Constraint("Equal", 26, 54),
    Sketcher.Constraint("Equal", 28, 56),
    Sketcher.Constraint("Equal", 54, 58),
    Sketcher.Constraint("Equal", 56, 60),
    Sketcher.Constraint("Equal", 53, 62),
    Sketcher.Constraint("Equal", 51, 64),
    Sketcher.Constraint("Equal", 46, 67),
    Sketcher.Constraint("Equal", 48, 69),
    Sketcher.Constraint("Equal", 58, 70),
    Sketcher.Constraint("Equal", 60, 72),
    Sketcher.Constraint("Equal", 62, 75),
    Sketcher.Constraint("Equal", 64, 77),
    Sketcher.Constraint("Equal", 67, 78),
    Sketcher.Constraint("Equal", 69, 80),
    Sketcher.Constraint("PointOnObject", 2, 2, -1),
    Sketcher.Constraint("PointOnObject", 39, 1, -1),
    Sketcher.Constraint("Perpendicular", 1, 6),
    Sketcher.Constraint("Perpendicular", 4, 8),
    Sketcher.Constraint("Perpendicular", 6, 10),
    Sketcher.Constraint("Perpendicular", 8, 12),
    Sketcher.Constraint("Perpendicular", 10, 14),
    Sketcher.Constraint("Perpendicular", 12, 16),
    Sketcher.Constraint("Parallel", 14, 18),
    Sketcher.Constraint("Perpendicular", 16, 20),
    Sketcher.Constraint("Parallel", 18, 22),
    Sketcher.Constraint("Parallel", 20, 24),
    Sketcher.Constraint("Parallel", 22, 25),
    Sketcher.Constraint("Parallel", 24, 27),
    Sketcher.Constraint("Parallel", 27, 30),
    Sketcher.Constraint("Perpendicular", 25, 32),
    Sketcher.Constraint("Perpendicular", 30, 34),
    Sketcher.Constraint("Perpendicular", 32, 36),
    Sketcher.Constraint("Perpendicular", 34, 38),
    Sketcher.Constraint("Perpendicular", 36, 41),
    Sketcher.Constraint("Perpendicular", 38, 43),
    Sketcher.Constraint("Perpendicular", 41, 45),
    Sketcher.Constraint("Perpendicular", 45, 47),
    Sketcher.Constraint("Parallel", 43, 49),
    Sketcher.Constraint("Parallel", 49, 50),
    Sketcher.Constraint("Parallel", 47, 52),
    Sketcher.Constraint("Parallel", 50, 55),
    Sketcher.Constraint("Parallel", 52, 57),
    Sketcher.Constraint("Parallel", 55, 59),
    Sketcher.Constraint("Parallel", 57, 61),
    Sketcher.Constraint("Parallel", 59, 63),
    Sketcher.Constraint("Parallel", 61, 65),
    Sketcher.Constraint("Parallel", 63, 66),
    Sketcher.Constraint("Parallel", 65, 68),
    Sketcher.Constraint("Perpendicular", 66, 71),
    Sketcher.Constraint("Perpendicular", 68, 73),
    Sketcher.Constraint("Parallel", 73, 74),
    Sketcher.Constraint("Parallel", 71, 76),
    Sketcher.Constraint("Parallel", 74, 79),
    Sketcher.Constraint("Parallel", 76, 81),
    Sketcher.Constraint("Horizontal", 6, 2, 7, 2),
    Sketcher.Constraint("Horizontal", 5, 2, 8, 2),
    Sketcher.Constraint("Horizontal", 4, 2, 9, 2),
    Sketcher.Constraint("Horizontal", 1, 2, 11, 2),
    Sketcher.Constraint("Horizontal", 14, 2, 15, 2),
    Sketcher.Constraint("Horizontal", 34, 2, 35, 1),
    Sketcher.Constraint("Horizontal", 32, 2, 37, 1),
    Sketcher.Constraint("Horizontal", 30, 2, 40, 1),
    Sketcher.Constraint("Horizontal", 43, 2, 44, 1),
    Sketcher.Constraint("Horizontal", 20, 2, 46, 2),
    Sketcher.Constraint("Horizontal", 18, 2, 48, 1),
    Sketcher.Constraint("Horizontal", 21, 2, 50, 2),
    Sketcher.Constraint("Horizontal", 24, 2, 51, 2),
    Sketcher.Constraint("Horizontal", 25, 2, 54, 1),
    Sketcher.Constraint("Horizontal", 27, 2, 56, 2),
    Sketcher.Constraint("Horizontal", 61, 2, 70, 1),
    Sketcher.Constraint("Horizontal", 59, 2, 72, 2),
    Sketcher.Constraint("Horizontal", 62, 1, 74, 2),
    Sketcher.Constraint("Horizontal", 65, 2, 75, 1),
    Sketcher.Constraint("Horizontal", 66, 2, 78, 2),
    Sketcher.Constraint("Horizontal", 68, 2, 80, 1),
    Sketcher.Constraint("Vertical", 1, 2, 3, 2),
    Sketcher.Constraint("Vertical", 8, 2, 13, 2),
    Sketcher.Constraint("Vertical", 30, 2, 31, 1),
    Sketcher.Constraint("Vertical", 36, 2, 42, 1),
    Sketcher.Constraint("Vertical", 25, 2, 58, 1),
    Sketcher.Constraint("Vertical", 27, 2, 60, 2),
    Sketcher.Constraint("Vertical", 22, 2, 62, 1),
    Sketcher.Constraint("Vertical", 24, 2, 64, 2),
    Sketcher.Constraint("Vertical", 17, 2, 66, 2),
    Sketcher.Constraint("Vertical", 20, 2, 67, 2),
    Sketcher.Constraint("Radius", 28, Q("12.193298 mm")),
    Sketcher.Constraint("Radius", 0, Q("56.729029 mm")),
    Sketcher.Constraint("Radius", 19, Q("48.164068 mm")),
    Sketcher.Constraint("Radius", 21, Q("24.206108 mm")),
    Sketcher.Constraint("Radius", 23, Q("32.31903 mm")),
    Sketcher.Constraint("Radius", 26, Q("17.829569 mm")),
    Sketcher.Constraint("Radius", 31, Q("3.299309 mm")),
    Sketcher.Constraint("Radius", 2, Q("65.486487 mm")),
    Sketcher.Constraint("Radius", 17, Q("39.494273 mm")),
    Sketcher.Constraint("Radius", 29, Q("7.396954 mm")),
    Sketcher.Constraint("DistanceX", -1, 1, 1, 2, Q("65.015601 mm")),
    Sketcher.Constraint("DistanceY", -1, 1, 6, 2, Q("65.015601 mm")),
    Sketcher.Constraint("DistanceY", 18, 2, -1, 1, Q("47.81774 mm")),
    Sketcher.Constraint("DistanceX", 19, 1, -1, 1, Q("47.81774 mm")),
    Sketcher.Constraint("DistanceX", 21, 2, -1, 1, Q("2.897611 mm")),
    Sketcher.Constraint("DistanceY", 24, 2, -1, 1, Q("2.897611 mm")),
    Sketcher.Constraint("DistanceX", 27, 2, -1, 1, Q("12.105621 mm")),
    Sketcher.Constraint("DistanceX", 28, 2, -1, 1, Q("1.459608 mm")),
    Sketcher.Constraint("DistanceY", 29, 1, -1, 1, Q("0.885458 mm")),
    Sketcher.Constraint("DistanceX", 33, 1, -1, 1, Q("0.885458 mm")),
    Sketcher.Constraint("DistanceX", -1, 1, 0, 2, Q("56.321114 mm")),
])
pad5 = body5.newObject("PartDesign::Pad", "Pad004")
pad5.Profile = sketch5
pad5.Length = Q("1 in")

doc.recompute()
